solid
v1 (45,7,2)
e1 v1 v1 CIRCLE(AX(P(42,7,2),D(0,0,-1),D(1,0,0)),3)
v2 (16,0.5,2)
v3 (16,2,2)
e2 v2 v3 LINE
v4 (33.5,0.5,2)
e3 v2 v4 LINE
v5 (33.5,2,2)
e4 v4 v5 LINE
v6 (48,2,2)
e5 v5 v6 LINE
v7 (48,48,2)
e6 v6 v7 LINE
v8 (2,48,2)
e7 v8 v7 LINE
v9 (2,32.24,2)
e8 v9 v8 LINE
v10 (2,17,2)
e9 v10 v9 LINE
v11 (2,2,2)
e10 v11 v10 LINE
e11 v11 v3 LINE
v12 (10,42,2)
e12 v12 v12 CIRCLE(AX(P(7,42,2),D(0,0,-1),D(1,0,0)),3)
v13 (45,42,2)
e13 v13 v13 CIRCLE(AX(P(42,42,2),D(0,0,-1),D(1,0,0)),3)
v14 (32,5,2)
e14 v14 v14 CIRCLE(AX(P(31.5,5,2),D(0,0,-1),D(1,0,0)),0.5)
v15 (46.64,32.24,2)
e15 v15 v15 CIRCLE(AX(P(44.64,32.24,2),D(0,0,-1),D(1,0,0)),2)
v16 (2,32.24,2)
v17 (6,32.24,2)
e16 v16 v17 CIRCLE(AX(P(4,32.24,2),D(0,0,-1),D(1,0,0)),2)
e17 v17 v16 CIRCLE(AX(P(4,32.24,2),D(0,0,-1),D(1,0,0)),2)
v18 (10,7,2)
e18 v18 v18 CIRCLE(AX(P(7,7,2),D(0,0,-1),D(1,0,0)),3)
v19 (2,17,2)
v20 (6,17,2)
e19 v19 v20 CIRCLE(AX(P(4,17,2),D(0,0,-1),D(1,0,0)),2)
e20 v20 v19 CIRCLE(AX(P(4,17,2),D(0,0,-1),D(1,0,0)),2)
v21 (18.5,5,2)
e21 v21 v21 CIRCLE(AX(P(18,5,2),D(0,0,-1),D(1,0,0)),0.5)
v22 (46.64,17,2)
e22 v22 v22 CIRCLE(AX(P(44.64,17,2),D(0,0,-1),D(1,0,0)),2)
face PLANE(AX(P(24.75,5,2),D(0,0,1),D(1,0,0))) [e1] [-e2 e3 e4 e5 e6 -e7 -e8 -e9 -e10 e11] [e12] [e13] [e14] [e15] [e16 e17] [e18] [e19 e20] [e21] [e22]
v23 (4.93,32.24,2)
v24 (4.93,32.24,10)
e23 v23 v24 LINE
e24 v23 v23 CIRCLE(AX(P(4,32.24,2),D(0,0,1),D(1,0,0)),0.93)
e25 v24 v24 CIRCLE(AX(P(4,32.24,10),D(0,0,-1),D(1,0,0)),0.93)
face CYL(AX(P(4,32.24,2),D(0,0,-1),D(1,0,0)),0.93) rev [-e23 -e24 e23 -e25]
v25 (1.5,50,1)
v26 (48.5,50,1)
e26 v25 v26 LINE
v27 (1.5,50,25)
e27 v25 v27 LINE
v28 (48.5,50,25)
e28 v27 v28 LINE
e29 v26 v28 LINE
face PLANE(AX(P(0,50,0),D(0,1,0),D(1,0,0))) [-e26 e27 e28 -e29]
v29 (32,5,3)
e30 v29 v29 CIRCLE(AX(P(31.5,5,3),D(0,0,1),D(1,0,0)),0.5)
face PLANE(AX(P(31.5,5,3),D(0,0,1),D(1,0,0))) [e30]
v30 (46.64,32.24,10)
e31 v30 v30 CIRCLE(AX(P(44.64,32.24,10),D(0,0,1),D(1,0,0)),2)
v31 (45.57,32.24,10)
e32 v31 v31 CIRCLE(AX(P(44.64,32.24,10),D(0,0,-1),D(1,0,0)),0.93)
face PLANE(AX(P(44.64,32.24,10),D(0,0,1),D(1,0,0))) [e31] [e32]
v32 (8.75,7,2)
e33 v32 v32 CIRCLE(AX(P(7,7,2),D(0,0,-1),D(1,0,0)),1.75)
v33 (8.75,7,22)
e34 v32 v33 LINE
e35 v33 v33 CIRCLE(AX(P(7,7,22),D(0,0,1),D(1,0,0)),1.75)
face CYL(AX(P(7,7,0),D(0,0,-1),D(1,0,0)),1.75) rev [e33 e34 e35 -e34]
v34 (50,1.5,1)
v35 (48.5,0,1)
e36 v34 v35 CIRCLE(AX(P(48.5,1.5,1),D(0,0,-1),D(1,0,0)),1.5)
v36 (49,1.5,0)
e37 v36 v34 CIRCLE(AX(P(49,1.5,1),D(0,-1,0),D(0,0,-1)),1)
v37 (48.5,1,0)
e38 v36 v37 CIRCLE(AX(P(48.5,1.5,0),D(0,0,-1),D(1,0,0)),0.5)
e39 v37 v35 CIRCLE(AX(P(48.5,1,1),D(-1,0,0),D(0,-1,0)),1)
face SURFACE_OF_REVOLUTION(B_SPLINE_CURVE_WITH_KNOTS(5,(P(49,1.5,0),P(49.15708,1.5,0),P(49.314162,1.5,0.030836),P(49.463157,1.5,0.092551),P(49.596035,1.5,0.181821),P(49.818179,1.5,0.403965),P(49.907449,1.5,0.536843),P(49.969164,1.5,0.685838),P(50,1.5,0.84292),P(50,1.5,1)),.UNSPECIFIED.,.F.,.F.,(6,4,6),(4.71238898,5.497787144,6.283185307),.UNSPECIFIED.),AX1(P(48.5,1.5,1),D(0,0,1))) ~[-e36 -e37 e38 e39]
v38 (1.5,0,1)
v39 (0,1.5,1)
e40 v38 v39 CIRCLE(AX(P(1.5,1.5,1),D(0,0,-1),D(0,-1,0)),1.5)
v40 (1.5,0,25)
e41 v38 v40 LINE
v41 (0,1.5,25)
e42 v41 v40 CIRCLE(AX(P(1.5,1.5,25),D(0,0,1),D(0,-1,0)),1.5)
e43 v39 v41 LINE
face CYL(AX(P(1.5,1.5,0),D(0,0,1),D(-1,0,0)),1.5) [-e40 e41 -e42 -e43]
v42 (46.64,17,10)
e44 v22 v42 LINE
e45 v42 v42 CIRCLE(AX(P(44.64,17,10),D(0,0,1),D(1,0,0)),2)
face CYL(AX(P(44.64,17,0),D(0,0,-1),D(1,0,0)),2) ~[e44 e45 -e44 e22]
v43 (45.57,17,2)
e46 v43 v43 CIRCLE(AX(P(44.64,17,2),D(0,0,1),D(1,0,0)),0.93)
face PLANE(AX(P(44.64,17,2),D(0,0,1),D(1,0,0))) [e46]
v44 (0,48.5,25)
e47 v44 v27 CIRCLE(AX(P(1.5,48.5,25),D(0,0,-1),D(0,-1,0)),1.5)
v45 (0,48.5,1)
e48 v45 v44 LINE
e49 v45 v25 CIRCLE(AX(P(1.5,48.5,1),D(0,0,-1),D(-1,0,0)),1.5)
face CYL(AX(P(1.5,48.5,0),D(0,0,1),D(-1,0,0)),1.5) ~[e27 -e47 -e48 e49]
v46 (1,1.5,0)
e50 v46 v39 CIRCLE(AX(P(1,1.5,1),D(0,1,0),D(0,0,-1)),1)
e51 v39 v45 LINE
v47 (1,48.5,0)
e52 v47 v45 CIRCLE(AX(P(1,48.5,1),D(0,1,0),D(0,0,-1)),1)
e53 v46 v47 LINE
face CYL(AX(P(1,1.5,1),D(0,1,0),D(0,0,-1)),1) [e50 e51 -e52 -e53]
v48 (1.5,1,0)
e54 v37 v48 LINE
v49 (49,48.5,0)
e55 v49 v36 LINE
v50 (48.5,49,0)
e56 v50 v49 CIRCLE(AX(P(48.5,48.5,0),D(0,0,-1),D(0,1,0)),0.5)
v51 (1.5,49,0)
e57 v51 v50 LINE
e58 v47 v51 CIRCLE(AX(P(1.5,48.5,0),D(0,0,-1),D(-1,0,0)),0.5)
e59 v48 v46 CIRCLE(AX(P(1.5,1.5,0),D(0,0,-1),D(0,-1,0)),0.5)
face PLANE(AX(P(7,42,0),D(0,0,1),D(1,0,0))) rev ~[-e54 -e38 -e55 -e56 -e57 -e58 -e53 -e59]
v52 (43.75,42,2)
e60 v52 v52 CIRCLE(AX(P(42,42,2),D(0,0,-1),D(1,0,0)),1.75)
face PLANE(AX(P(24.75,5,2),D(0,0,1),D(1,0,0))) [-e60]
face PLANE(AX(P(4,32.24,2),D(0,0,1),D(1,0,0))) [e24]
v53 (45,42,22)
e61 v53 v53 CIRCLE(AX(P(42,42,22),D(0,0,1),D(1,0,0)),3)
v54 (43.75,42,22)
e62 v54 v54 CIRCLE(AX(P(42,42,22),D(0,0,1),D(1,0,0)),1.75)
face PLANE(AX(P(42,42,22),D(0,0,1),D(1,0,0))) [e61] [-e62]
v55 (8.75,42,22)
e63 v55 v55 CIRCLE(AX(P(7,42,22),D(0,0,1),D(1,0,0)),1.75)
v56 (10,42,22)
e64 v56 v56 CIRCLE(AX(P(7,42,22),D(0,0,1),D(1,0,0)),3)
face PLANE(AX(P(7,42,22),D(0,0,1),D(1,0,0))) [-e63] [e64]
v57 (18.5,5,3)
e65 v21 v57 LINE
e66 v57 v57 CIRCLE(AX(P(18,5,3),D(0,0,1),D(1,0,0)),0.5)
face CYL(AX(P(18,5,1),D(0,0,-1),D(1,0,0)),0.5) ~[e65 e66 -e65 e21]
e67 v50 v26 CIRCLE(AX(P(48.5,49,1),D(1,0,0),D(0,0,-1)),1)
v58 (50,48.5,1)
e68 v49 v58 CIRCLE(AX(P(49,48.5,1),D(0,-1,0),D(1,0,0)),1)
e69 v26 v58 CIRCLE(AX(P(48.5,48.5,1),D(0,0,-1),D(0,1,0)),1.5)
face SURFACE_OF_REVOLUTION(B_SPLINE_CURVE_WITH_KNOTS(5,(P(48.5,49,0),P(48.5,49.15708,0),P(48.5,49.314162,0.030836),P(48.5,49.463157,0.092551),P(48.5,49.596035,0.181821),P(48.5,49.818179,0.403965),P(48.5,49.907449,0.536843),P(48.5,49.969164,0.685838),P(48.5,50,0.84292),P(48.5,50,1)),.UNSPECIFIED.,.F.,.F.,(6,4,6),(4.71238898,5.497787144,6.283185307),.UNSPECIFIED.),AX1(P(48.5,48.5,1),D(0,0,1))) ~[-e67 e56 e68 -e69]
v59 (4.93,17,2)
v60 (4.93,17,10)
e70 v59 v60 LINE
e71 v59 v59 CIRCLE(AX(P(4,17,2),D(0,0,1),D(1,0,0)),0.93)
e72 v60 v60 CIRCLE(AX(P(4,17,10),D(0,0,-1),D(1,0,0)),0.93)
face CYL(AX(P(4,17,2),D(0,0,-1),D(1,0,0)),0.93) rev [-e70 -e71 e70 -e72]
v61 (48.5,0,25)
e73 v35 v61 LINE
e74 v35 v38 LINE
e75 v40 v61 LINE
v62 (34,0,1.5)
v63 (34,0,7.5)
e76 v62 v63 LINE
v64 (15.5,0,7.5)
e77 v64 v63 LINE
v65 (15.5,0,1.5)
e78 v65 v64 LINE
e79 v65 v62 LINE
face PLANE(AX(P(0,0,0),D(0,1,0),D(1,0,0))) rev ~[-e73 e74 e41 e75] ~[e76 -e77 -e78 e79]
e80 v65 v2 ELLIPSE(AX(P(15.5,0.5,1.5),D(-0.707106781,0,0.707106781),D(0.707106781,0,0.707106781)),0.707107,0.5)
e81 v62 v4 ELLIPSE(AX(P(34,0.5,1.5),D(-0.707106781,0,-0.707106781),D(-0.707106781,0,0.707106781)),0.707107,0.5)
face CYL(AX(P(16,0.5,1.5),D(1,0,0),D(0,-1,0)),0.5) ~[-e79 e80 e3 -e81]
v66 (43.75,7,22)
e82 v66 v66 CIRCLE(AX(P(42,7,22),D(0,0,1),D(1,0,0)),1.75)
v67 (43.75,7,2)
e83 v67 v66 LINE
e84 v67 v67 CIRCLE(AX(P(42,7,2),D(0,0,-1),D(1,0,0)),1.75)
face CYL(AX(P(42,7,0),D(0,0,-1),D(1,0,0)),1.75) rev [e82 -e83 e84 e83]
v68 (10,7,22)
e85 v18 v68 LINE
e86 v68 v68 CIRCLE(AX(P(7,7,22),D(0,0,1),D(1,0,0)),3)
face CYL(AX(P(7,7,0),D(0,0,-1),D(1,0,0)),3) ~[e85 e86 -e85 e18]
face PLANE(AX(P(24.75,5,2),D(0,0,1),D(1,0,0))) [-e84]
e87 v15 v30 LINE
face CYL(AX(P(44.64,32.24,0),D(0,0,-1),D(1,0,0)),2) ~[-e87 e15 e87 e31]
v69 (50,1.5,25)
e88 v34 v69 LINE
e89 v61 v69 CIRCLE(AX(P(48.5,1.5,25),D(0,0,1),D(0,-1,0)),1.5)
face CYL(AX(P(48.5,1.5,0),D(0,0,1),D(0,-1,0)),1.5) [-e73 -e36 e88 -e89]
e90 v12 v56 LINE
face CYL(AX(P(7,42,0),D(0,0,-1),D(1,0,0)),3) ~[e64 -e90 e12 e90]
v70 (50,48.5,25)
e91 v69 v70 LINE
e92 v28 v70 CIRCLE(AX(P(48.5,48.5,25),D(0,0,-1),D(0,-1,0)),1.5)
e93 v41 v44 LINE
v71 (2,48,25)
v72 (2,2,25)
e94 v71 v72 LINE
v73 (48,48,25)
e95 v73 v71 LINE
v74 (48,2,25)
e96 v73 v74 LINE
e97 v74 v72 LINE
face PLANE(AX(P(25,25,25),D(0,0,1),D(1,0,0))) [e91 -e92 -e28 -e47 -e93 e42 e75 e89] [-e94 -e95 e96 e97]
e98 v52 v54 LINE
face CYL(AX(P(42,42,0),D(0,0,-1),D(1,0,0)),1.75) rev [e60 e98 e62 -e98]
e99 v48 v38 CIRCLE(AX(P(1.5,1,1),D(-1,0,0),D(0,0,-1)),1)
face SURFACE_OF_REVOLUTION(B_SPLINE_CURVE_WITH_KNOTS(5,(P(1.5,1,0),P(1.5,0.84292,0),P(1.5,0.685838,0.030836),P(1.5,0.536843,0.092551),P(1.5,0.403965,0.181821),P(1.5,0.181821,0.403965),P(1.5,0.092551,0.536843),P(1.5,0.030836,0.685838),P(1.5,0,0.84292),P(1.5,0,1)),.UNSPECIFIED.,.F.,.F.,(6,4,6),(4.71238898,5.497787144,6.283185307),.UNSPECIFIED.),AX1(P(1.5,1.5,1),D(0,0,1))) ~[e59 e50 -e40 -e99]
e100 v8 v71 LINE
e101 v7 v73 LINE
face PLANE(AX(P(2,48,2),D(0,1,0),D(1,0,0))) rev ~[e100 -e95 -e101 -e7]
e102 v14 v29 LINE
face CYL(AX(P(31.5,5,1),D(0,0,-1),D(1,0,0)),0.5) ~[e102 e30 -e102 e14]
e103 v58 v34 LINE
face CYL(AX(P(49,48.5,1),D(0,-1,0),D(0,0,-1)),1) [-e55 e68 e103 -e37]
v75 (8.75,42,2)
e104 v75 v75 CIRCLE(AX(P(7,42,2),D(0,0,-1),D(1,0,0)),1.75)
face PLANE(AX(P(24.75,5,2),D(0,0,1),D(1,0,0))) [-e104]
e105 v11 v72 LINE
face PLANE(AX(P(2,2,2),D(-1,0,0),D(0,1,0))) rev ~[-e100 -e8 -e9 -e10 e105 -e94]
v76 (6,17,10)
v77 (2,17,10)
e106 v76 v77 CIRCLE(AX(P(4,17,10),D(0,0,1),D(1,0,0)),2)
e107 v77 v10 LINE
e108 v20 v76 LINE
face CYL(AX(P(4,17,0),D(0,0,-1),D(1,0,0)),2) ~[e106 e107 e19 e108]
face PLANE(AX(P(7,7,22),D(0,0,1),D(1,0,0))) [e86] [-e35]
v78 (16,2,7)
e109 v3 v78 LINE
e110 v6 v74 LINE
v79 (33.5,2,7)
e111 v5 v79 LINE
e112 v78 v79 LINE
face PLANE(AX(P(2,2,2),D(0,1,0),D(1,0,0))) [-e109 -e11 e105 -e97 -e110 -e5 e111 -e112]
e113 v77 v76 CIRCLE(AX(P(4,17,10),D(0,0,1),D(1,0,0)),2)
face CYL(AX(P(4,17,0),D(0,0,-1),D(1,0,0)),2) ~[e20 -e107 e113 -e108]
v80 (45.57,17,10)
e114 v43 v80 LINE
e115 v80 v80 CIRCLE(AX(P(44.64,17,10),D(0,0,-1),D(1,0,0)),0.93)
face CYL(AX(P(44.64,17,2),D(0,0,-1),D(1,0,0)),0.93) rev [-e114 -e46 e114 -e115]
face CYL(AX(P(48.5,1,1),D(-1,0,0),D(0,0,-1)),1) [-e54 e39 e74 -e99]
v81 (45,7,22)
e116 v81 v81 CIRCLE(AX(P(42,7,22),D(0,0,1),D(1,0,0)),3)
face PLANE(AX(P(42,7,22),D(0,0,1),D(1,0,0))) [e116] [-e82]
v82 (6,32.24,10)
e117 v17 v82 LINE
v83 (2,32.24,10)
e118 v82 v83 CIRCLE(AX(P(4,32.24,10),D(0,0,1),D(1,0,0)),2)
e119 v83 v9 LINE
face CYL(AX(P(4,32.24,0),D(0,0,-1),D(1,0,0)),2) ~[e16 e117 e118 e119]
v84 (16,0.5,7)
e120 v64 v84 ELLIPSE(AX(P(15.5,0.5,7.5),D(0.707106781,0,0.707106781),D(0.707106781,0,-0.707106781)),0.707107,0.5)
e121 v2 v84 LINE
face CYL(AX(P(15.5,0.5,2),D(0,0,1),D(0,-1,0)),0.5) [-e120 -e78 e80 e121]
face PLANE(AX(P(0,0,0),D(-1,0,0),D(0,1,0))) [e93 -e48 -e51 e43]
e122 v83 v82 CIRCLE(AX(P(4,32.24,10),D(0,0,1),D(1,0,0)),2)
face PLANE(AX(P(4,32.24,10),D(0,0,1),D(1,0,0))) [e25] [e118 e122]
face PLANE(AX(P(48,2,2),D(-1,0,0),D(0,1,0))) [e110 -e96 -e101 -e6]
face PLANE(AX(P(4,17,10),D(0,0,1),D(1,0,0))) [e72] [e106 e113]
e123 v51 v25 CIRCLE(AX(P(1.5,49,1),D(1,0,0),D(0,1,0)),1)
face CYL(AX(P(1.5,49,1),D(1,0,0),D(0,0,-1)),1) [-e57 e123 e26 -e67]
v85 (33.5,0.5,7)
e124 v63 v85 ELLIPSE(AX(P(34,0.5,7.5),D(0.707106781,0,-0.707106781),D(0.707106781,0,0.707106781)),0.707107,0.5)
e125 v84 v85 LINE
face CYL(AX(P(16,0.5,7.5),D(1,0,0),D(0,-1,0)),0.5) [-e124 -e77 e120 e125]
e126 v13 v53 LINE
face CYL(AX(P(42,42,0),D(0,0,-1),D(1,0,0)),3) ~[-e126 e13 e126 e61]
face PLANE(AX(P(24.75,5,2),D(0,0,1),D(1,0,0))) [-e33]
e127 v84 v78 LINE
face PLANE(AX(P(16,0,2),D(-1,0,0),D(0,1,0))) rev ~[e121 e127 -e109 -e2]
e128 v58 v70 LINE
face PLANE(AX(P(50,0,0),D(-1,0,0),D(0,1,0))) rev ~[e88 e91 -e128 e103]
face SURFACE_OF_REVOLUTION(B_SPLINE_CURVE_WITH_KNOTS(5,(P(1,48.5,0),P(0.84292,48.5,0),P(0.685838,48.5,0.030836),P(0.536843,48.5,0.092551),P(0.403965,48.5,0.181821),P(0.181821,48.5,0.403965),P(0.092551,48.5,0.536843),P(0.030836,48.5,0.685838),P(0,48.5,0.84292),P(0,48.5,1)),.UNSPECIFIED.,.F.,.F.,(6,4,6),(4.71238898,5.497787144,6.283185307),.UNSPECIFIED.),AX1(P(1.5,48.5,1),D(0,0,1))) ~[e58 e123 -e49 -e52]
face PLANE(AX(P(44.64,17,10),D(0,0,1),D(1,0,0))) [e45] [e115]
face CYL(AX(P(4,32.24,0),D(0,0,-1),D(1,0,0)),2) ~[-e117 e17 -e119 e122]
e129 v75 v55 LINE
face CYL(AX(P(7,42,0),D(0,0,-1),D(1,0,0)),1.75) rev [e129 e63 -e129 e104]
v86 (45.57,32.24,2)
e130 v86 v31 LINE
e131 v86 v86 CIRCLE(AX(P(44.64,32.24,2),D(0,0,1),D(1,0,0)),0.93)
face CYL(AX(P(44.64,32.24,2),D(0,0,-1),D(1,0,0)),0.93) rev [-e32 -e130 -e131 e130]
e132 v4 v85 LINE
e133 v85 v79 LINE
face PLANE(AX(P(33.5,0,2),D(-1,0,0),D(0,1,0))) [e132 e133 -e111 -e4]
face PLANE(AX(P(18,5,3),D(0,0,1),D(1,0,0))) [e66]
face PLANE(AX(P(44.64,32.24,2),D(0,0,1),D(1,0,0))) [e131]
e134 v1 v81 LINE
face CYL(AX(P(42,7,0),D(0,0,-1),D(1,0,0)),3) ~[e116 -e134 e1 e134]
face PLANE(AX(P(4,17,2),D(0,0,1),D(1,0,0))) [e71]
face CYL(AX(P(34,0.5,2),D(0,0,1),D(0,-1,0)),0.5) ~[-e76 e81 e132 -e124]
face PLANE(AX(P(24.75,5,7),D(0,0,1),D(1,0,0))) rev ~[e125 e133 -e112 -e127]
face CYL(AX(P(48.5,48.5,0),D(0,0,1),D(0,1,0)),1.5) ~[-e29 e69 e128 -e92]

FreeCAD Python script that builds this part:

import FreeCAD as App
import Part
import Sketcher


def edges_at(feature, points):
    """Names of the edges that pass closest to the given points."""
    edges = feature.Shape.Edges
    near = lambda p: min(range(len(edges)), key=lambda i: edges[i].distToShape(Part.Vertex(*p))[0])
    return sorted({f"Edge{near(p) + 1}" for p in points})


def add_polygon(sketch, points):
    """Adds a closed chain of lines whose ends are joined by coincident constraints."""
    first, n = sketch.GeometryCount, len(points)
    for a, b in zip(points, points[1:] + points[:1]):
        sketch.addGeometry(Part.LineSegment(App.Vector(*a, 0), App.Vector(*b, 0)), False)
    for i in range(n):
        sketch.addConstraint(Sketcher.Constraint("Coincident", first + i, 2, first + (i + 1) % n, 1))

doc = App.newDocument("Part")
body = doc.addObject("PartDesign::Body", "Body")

# Sketch on XY plane
sketch1 = doc.addObject("Sketcher::SketchObject", "Sketch")
body.addObject(sketch1)
sketch1.AttachmentSupport = (doc.XY_Plane, [""])
sketch1.MapMode = "FlatFace"
sketch1.addGeometry(Part.Circle(App.Vector(0, 0, 0), App.Vector(0, 0, 1), 1.8), False)
sketch1.addConstraint([
    Sketcher.Constraint("Coincident", 0, 3, -1, 1),
    Sketcher.Constraint("Diameter", 0, 3.5),
])
pad1 = doc.addObject("PartDesign::Pad", "Pad")
body.addObject(pad1)
pad1.Profile = sketch1
pad1.Length = 22
body2 = doc.addObject("PartDesign::Body", "Body001")

# Sketch on XY plane
sketch2 = doc.addObject("Sketcher::SketchObject", "Sketch001")
body2.addObject(sketch2)
sketch2.AttachmentSupport = (doc.getObject("XY_Plane001"), [""])
sketch2.MapMode = "FlatFace"
sketch2.addGeometry(Part.Circle(App.Vector(0, 0, 0), App.Vector(0, 0, 1), 3), False)
sketch2.addConstraint([
    Sketcher.Constraint("Coincident", 0, 3, -1, 1),
    Sketcher.Constraint("Diameter", 0, 6.0),
])
pad2 = doc.addObject("PartDesign::Pad", "Pad001")
body2.addObject(pad2)
pad2.Profile = sketch2
pad2.Length = 22
doc.recompute()

boolean = doc.addObject("PartDesign::Boolean", "Boolean")
body2.addObject(boolean)
boolean.Type = "Cut"
boolean.addObjects([body])
body3 = doc.addObject("PartDesign::Body", "Body002")
doc.recompute()

body2.Placement = App.Placement(App.Vector(41, 35, 0), App.Rotation(App.Vector(0, 0, 1), 0))
boolean2 = doc.addObject("PartDesign::Boolean", "Boolean001")
body3.addObject(boolean2)
boolean2.Type = "Fuse"
boolean2.addObjects([body2])
body4 = doc.addObject("PartDesign::Body", "Body003")

# Sketch on XY plane
sketch3 = doc.addObject("Sketcher::SketchObject", "Sketch002")
body4.addObject(sketch3)
sketch3.AttachmentSupport = (doc.getObject("XY_Plane003"), [""])
sketch3.MapMode = "FlatFace"
sketch3.addGeometry(Part.Circle(App.Vector(0, 0, 0), App.Vector(0, 0, 1), 1.8), False)
sketch3.addConstraint([
    Sketcher.Constraint("Coincident", 0, 3, -1, 1),
    Sketcher.Constraint("Diameter", 0, 3.5),
])
pad3 = doc.addObject("PartDesign::Pad", "Pad002")
body4.addObject(pad3)
pad3.Profile = sketch3
pad3.Length = 22
body5 = doc.addObject("PartDesign::Body", "Body004")

# Sketch on XY plane
sketch4 = doc.addObject("Sketcher::SketchObject", "Sketch003")
body5.addObject(sketch4)
sketch4.AttachmentSupport = (doc.getObject("XY_Plane004"), [""])
sketch4.MapMode = "FlatFace"
sketch4.addGeometry(Part.Circle(App.Vector(0, 0, 0), App.Vector(0, 0, 1), 3), False)
sketch4.addConstraint([
    Sketcher.Constraint("Coincident", 0, 3, -1, 1),
    Sketcher.Constraint("Diameter", 0, 6.0),
])
pad4 = doc.addObject("PartDesign::Pad", "Pad003")
body5.addObject(pad4)
pad4.Profile = sketch4
pad4.Length = 22
doc.recompute()

boolean3 = doc.addObject("PartDesign::Boolean", "Boolean002")
body5.addObject(boolean3)
boolean3.Type = "Cut"
boolean3.addObjects([body4])
body6 = doc.addObject("PartDesign::Body", "Body005")
body6.AllowCompound = True
doc.recompute()

body5.Placement = App.Placement(App.Vector(6, 35, 0), App.Rotation(App.Vector(0, 0, 1), 0))
boolean4 = doc.addObject("PartDesign::Boolean", "Boolean003")
body6.addObject(boolean4)
boolean4.Type = "Fuse"
boolean4.addObjects([body5])
doc.recompute()

boolean5 = doc.addObject("PartDesign::Boolean", "Boolean004")
body6.addObject(boolean5)
boolean5.Type = "Fuse"
boolean5.addObjects([body3])
body7 = doc.addObject("PartDesign::Body", "Body006")
body7.AllowCompound = True
doc.recompute()

body6.Placement = App.Placement(App.Vector(0, -35, 0), App.Rotation(App.Vector(0, 0, 1), 0))
boolean6 = doc.addObject("PartDesign::Boolean", "Boolean005")
body7.addObject(boolean6)
boolean6.Type = "Fuse"
boolean6.addObjects([body6])
body8 = doc.addObject("PartDesign::Body", "Body007")

# Sketch on XY plane
sketch5 = doc.addObject("Sketcher::SketchObject", "Sketch004")
body8.addObject(sketch5)
sketch5.AttachmentSupport = (doc.getObject("XY_Plane007"), [""])
sketch5.MapMode = "FlatFace"
sketch5.addGeometry(Part.Circle(App.Vector(0, 0, 0), App.Vector(0, 0, 1), 1.8), False)
sketch5.addConstraint([
    Sketcher.Constraint("Coincident", 0, 3, -1, 1),
    Sketcher.Constraint("Diameter", 0, 3.5),
])
pad5 = doc.addObject("PartDesign::Pad", "Pad004")
body8.addObject(pad5)
pad5.Profile = sketch5
pad5.Length = 22
body9 = doc.addObject("PartDesign::Body", "Body008")

# Sketch on XY plane
sketch6 = doc.addObject("Sketcher::SketchObject", "Sketch005")
body9.addObject(sketch6)
sketch6.AttachmentSupport = (doc.getObject("XY_Plane008"), [""])
sketch6.MapMode = "FlatFace"
sketch6.addGeometry(Part.Circle(App.Vector(0, 0, 0), App.Vector(0, 0, 1), 3), False)
sketch6.addConstraint([
    Sketcher.Constraint("Coincident", 0, 3, -1, 1),
    Sketcher.Constraint("Diameter", 0, 6.0),
])
pad6 = doc.addObject("PartDesign::Pad", "Pad005")
body9.addObject(pad6)
pad6.Profile = sketch6
pad6.Length = 22
doc.recompute()

boolean7 = doc.addObject("PartDesign::Boolean", "Boolean006")
body9.addObject(boolean7)
boolean7.Type = "Cut"
boolean7.addObjects([body8])
body10 = doc.addObject("PartDesign::Body", "Body009")
doc.recompute()

body9.Placement = App.Placement(App.Vector(41, 35, 0), App.Rotation(App.Vector(0, 0, 1), 0))
boolean8 = doc.addObject("PartDesign::Boolean", "Boolean007")
body10.addObject(boolean8)
boolean8.Type = "Fuse"
boolean8.addObjects([body9])
body11 = doc.addObject("PartDesign::Body", "Body010")

# Sketch on XY plane
sketch7 = doc.addObject("Sketcher::SketchObject", "Sketch006")
body11.addObject(sketch7)
sketch7.AttachmentSupport = (doc.getObject("XY_Plane010"), [""])
sketch7.MapMode = "FlatFace"
sketch7.addGeometry(Part.Circle(App.Vector(0, 0, 0), App.Vector(0, 0, 1), 1.8), False)
sketch7.addConstraint([
    Sketcher.Constraint("Coincident", 0, 3, -1, 1),
    Sketcher.Constraint("Diameter", 0, 3.5),
])
pad7 = doc.addObject("PartDesign::Pad", "Pad006")
body11.addObject(pad7)
pad7.Profile = sketch7
pad7.Length = 22
body12 = doc.addObject("PartDesign::Body", "Body011")

# Sketch on XY plane
sketch8 = doc.addObject("Sketcher::SketchObject", "Sketch007")
body12.addObject(sketch8)
sketch8.AttachmentSupport = (doc.getObject("XY_Plane011"), [""])
sketch8.MapMode = "FlatFace"
sketch8.addGeometry(Part.Circle(App.Vector(0, 0, 0), App.Vector(0, 0, 1), 3), False)
sketch8.addConstraint([
    Sketcher.Constraint("Coincident", 0, 3, -1, 1),
    Sketcher.Constraint("Diameter", 0, 6.0),
])
pad8 = doc.addObject("PartDesign::Pad", "Pad007")
body12.addObject(pad8)
pad8.Profile = sketch8
pad8.Length = 22
doc.recompute()

boolean9 = doc.addObject("PartDesign::Boolean", "Boolean008")
body12.addObject(boolean9)
boolean9.Type = "Cut"
boolean9.addObjects([body11])
body13 = doc.addObject("PartDesign::Body", "Body012")
body13.AllowCompound = True
doc.recompute()

body12.Placement = App.Placement(App.Vector(6, 35, 0), App.Rotation(App.Vector(0, 0, 1), 0))
boolean10 = doc.addObject("PartDesign::Boolean", "Boolean009")
body13.addObject(boolean10)
boolean10.Type = "Fuse"
boolean10.addObjects([body12])
doc.recompute()

boolean11 = doc.addObject("PartDesign::Boolean", "Boolean010")
body13.addObject(boolean11)
boolean11.Type = "Fuse"
boolean11.addObjects([body10])
doc.recompute()

boolean12 = doc.addObject("PartDesign::Boolean", "Boolean011")
body13.addObject(boolean12)
boolean12.Type = "Fuse"
boolean12.addObjects([body7])
body14 = doc.addObject("PartDesign::Body", "Body013")
body14.AllowCompound = True
doc.recompute()

body13.Placement = App.Placement(App.Vector(1, 7, 0), App.Rotation(App.Vector(0, 0, 1), 0))
boolean13 = doc.addObject("PartDesign::Boolean", "Boolean012")
body14.addObject(boolean13)
boolean13.Type = "Fuse"
boolean13.addObjects([body13])
body15 = doc.addObject("PartDesign::Body", "Body014")

# Sketch on XY plane
sketch9 = doc.addObject("Sketcher::SketchObject", "Sketch008")
body15.addObject(sketch9)
sketch9.AttachmentSupport = (doc.getObject("XY_Plane014"), [""])
sketch9.MapMode = "FlatFace"
sketch9.addGeometry(Part.Circle(App.Vector(13.5, 0, 0), App.Vector(0, 0, 1), 0.5), False)
sketch9.addConstraint([
    Sketcher.Constraint("PointOnObject", 0, 3, -1),
    Sketcher.Constraint("Diameter", 0, 1.0),
    Sketcher.Constraint("DistanceX", -1, 1, 0, 3, 13.5),
])
pad9 = doc.addObject("PartDesign::Pad", "Pad008")
body15.addObject(pad9)
pad9.Profile = sketch9
pad9.Length = 2
body16 = doc.addObject("PartDesign::Body", "Body015")
body16.AllowCompound = True

# Sketch on XY plane
sketch10 = doc.addObject("Sketcher::SketchObject", "Sketch009")
body16.addObject(sketch10)
sketch10.AttachmentSupport = (doc.getObject("XY_Plane015"), [""])
sketch10.MapMode = "FlatFace"
sketch10.addGeometry(Part.Circle(App.Vector(0, 0, 0), App.Vector(0, 0, 1), 0.5), False)
sketch10.addConstraint([
    Sketcher.Constraint("Coincident", 0, 3, -1, 1),
    Sketcher.Constraint("Diameter", 0, 1.0),
])
pad10 = doc.addObject("PartDesign::Pad", "Pad009")
body16.addObject(pad10)
pad10.Profile = sketch10
pad10.Length = 2
doc.recompute()

boolean14 = doc.addObject("PartDesign::Boolean", "Boolean013")
body16.addObject(boolean14)
boolean14.Type = "Fuse"
boolean14.addObjects([body15])
body17 = doc.addObject("PartDesign::Body", "Body016")
body17.AllowCompound = True
doc.recompute()

body16.Placement = App.Placement(App.Vector(18, 5, 1), App.Rotation(App.Vector(0, 0, 1), 0))
boolean15 = doc.addObject("PartDesign::Boolean", "Boolean014")
body17.addObject(boolean15)
boolean15.Type = "Fuse"
boolean15.addObjects([body16])
body18 = doc.addObject("PartDesign::Body", "Body017")

# Sketch on XY plane
sketch11 = doc.addObject("Sketcher::SketchObject", "Sketch010")
body18.addObject(sketch11)
sketch11.AttachmentSupport = (doc.getObject("XY_Plane017"), [""])
sketch11.MapMode = "FlatFace"
sketch11.AttachmentOffset = App.Placement(App.Vector(0, 0, 2), App.Rotation())
add_polygon(sketch11, [(16, 10), (16, 0), (34, 0), (34, 10)])  # lines 0-3
sketch11.addConstraint([
    Sketcher.Constraint("Vertical", 0),
    Sketcher.Constraint("Horizontal", 1),
    Sketcher.Constraint("Vertical", 2),
    Sketcher.Constraint("Horizontal", 3),
    Sketcher.Constraint("PointOnObject", 0, 2, -1),
    Sketcher.Constraint("DistanceY", 0, 2, 0, 1, 10.0),
    Sketcher.Constraint("DistanceX", 1, 1, 1, 2, 17.5),
    Sketcher.Constraint("DistanceX", -1, 1, 0, 2, 16.0),
])
pad11 = doc.addObject("PartDesign::Pad", "Pad010")
body18.addObject(pad11)
pad11.Profile = sketch11
pad11.Length = 5
body19 = doc.addObject("PartDesign::Body", "Body018")

# Sketch on XY plane
sketch12 = doc.addObject("Sketcher::SketchObject", "Sketch011")
body19.addObject(sketch12)
sketch12.AttachmentSupport = (doc.getObject("XY_Plane018"), [""])
sketch12.MapMode = "FlatFace"
sketch12.AttachmentOffset = App.Placement(App.Vector(0, 0, 2), App.Rotation())
sketch12.addGeometry(Part.Circle(App.Vector(7, 10, 0), App.Vector(0, 0, 1), 0.9), False)
sketch12.addConstraint([
    Sketcher.Constraint("Diameter", 0, 1.86),
    Sketcher.Constraint("DistanceX", -1, 1, 0, 3, 7.0),
    Sketcher.Constraint("DistanceY", -1, 1, 0, 3, 10.0),
])
pad12 = doc.addObject("PartDesign::Pad", "Pad011")
body19.addObject(pad12)
pad12.Profile = sketch12
pad12.Length = 10
body20 = doc.addObject("PartDesign::Body", "Body019")

# Sketch on XY plane
sketch13 = doc.addObject("Sketcher::SketchObject", "Sketch012")
body20.addObject(sketch13)
sketch13.AttachmentSupport = (doc.getObject("XY_Plane019"), [""])
sketch13.MapMode = "FlatFace"
sketch13.addGeometry(Part.Circle(App.Vector(7, 10, 0), App.Vector(0, 0, 1), 2), False)
sketch13.addConstraint([
    Sketcher.Constraint("Diameter", 0, 4.0),
    Sketcher.Constraint("DistanceX", -1, 1, 0, 3, 7.0),
    Sketcher.Constraint("DistanceY", -1, 1, 0, 3, 10.0),
])
pad13 = doc.addObject("PartDesign::Pad", "Pad012")
body20.addObject(pad13)
pad13.Profile = sketch13
pad13.Length = 10
doc.recompute()

boolean16 = doc.addObject("PartDesign::Boolean", "Boolean015")
body20.addObject(boolean16)
boolean16.Type = "Cut"
boolean16.addObjects([body19])
body21 = doc.addObject("PartDesign::Body", "Body020")
doc.recompute()

body20.Placement = App.Placement(App.Vector(37.64, 14.24, 0), App.Rotation(App.Vector(0, 0, 1), 0))
boolean17 = doc.addObject("PartDesign::Boolean", "Boolean016")
body21.addObject(boolean17)
boolean17.Type = "Fuse"
boolean17.addObjects([body20])
body22 = doc.addObject("PartDesign::Body", "Body021")

# Sketch on XY plane
sketch14 = doc.addObject("Sketcher::SketchObject", "Sketch013")
body22.addObject(sketch14)
sketch14.AttachmentSupport = (doc.getObject("XY_Plane021"), [""])
sketch14.MapMode = "FlatFace"
sketch14.AttachmentOffset = App.Placement(App.Vector(0, 0, 2), App.Rotation())
sketch14.addGeometry(Part.Circle(App.Vector(7, 10, 0), App.Vector(0, 0, 1), 0.9), False)
sketch14.addConstraint([
    Sketcher.Constraint("Diameter", 0, 1.86),
    Sketcher.Constraint("DistanceX", -1, 1, 0, 3, 7.0),
    Sketcher.Constraint("DistanceY", -1, 1, 0, 3, 10.0),
])
pad14 = doc.addObject("PartDesign::Pad", "Pad013")
body22.addObject(pad14)
pad14.Profile = sketch14
pad14.Length = 10
body23 = doc.addObject("PartDesign::Body", "Body022")

# Sketch on XY plane
sketch15 = doc.addObject("Sketcher::SketchObject", "Sketch014")
body23.addObject(sketch15)
sketch15.AttachmentSupport = (doc.getObject("XY_Plane022"), [""])
sketch15.MapMode = "FlatFace"
sketch15.addGeometry(Part.Circle(App.Vector(7, 10, 0), App.Vector(0, 0, 1), 2), False)
sketch15.addConstraint([
    Sketcher.Constraint("Diameter", 0, 4.0),
    Sketcher.Constraint("DistanceX", -1, 1, 0, 3, 7.0),
    Sketcher.Constraint("DistanceY", -1, 1, 0, 3, 10.0),
])
pad15 = doc.addObject("PartDesign::Pad", "Pad014")
body23.addObject(pad15)
pad15.Profile = sketch15
pad15.Length = 10
doc.recompute()

boolean18 = doc.addObject("PartDesign::Boolean", "Boolean017")
body23.addObject(boolean18)
boolean18.Type = "Cut"
boolean18.addObjects([body22])
body24 = doc.addObject("PartDesign::Body", "Body023")
body24.AllowCompound = True
doc.recompute()

body23.Placement = App.Placement(App.Vector(37.64, -1, 0), App.Rotation(App.Vector(0, 0, 1), 0))
boolean19 = doc.addObject("PartDesign::Boolean", "Boolean018")
body24.addObject(boolean19)
boolean19.Type = "Fuse"
boolean19.addObjects([body23])
doc.recompute()

boolean20 = doc.addObject("PartDesign::Boolean", "Boolean019")
body24.addObject(boolean20)
boolean20.Type = "Fuse"
boolean20.addObjects([body21])
body25 = doc.addObject("PartDesign::Body", "Body024")

# Sketch on XY plane
sketch16 = doc.addObject("Sketcher::SketchObject", "Sketch015")
body25.addObject(sketch16)
sketch16.AttachmentSupport = (doc.getObject("XY_Plane024"), [""])
sketch16.MapMode = "FlatFace"
sketch16.AttachmentOffset = App.Placement(App.Vector(0, 0, 2), App.Rotation())
sketch16.addGeometry(Part.Circle(App.Vector(7, 10, 0), App.Vector(0, 0, 1), 0.9), False)
sketch16.addConstraint([
    Sketcher.Constraint("Diameter", 0, 1.86),
    Sketcher.Constraint("DistanceX", -1, 1, 0, 3, 7.0),
    Sketcher.Constraint("DistanceY", -1, 1, 0, 3, 10.0),
])
pad16 = doc.addObject("PartDesign::Pad", "Pad015")
body25.addObject(pad16)
pad16.Profile = sketch16
pad16.Length = 10
body26 = doc.addObject("PartDesign::Body", "Body025")

# Sketch on XY plane
sketch17 = doc.addObject("Sketcher::SketchObject", "Sketch016")
body26.addObject(sketch17)
sketch17.AttachmentSupport = (doc.getObject("XY_Plane025"), [""])
sketch17.MapMode = "FlatFace"
sketch17.addGeometry(Part.Circle(App.Vector(7, 10, 0), App.Vector(0, 0, 1), 2), False)
sketch17.addConstraint([
    Sketcher.Constraint("Diameter", 0, 4.0),
    Sketcher.Constraint("DistanceX", -1, 1, 0, 3, 7.0),
    Sketcher.Constraint("DistanceY", -1, 1, 0, 3, 10.0),
])
pad17 = doc.addObject("PartDesign::Pad", "Pad016")
body26.addObject(pad17)
pad17.Profile = sketch17
pad17.Length = 10
doc.recompute()

boolean21 = doc.addObject("PartDesign::Boolean", "Boolean020")
body26.addObject(boolean21)
boolean21.Type = "Cut"
boolean21.addObjects([body25])
body27 = doc.addObject("PartDesign::Body", "Body026")
doc.recompute()

body26.Placement = App.Placement(App.Vector(-3, 14.24, 0), App.Rotation(App.Vector(0, 0, 1), 0))
boolean22 = doc.addObject("PartDesign::Boolean", "Boolean021")
body27.addObject(boolean22)
boolean22.Type = "Fuse"
boolean22.addObjects([body26])
body28 = doc.addObject("PartDesign::Body", "Body027")

# Sketch on XY plane
sketch18 = doc.addObject("Sketcher::SketchObject", "Sketch017")
body28.addObject(sketch18)
sketch18.AttachmentSupport = (doc.getObject("XY_Plane027"), [""])
sketch18.MapMode = "FlatFace"
sketch18.AttachmentOffset = App.Placement(App.Vector(0, 0, 2), App.Rotation())
sketch18.addGeometry(Part.Circle(App.Vector(7, 10, 0), App.Vector(0, 0, 1), 0.9), False)
sketch18.addConstraint([
    Sketcher.Constraint("Diameter", 0, 1.86),
    Sketcher.Constraint("DistanceX", -1, 1, 0, 3, 7.0),
    Sketcher.Constraint("DistanceY", -1, 1, 0, 3, 10.0),
])
pad18 = doc.addObject("PartDesign::Pad", "Pad017")
body28.addObject(pad18)
pad18.Profile = sketch18
pad18.Length = 10
body29 = doc.addObject("PartDesign::Body", "Body028")

# Sketch on XY plane
sketch19 = doc.addObject("Sketcher::SketchObject", "Sketch018")
body29.addObject(sketch19)
sketch19.AttachmentSupport = (doc.getObject("XY_Plane028"), [""])
sketch19.MapMode = "FlatFace"
sketch19.addGeometry(Part.Circle(App.Vector(7, 10, 0), App.Vector(0, 0, 1), 2), False)
sketch19.addConstraint([
    Sketcher.Constraint("Diameter", 0, 4.0),
    Sketcher.Constraint("DistanceX", -1, 1, 0, 3, 7.0),
    Sketcher.Constraint("DistanceY", -1, 1, 0, 3, 10.0),
])
pad19 = doc.addObject("PartDesign::Pad", "Pad018")
body29.addObject(pad19)
pad19.Profile = sketch19
pad19.Length = 10
doc.recompute()

boolean23 = doc.addObject("PartDesign::Boolean", "Boolean022")
body29.addObject(boolean23)
boolean23.Type = "Cut"
boolean23.addObjects([body28])
body30 = doc.addObject("PartDesign::Body", "Body029")
body30.AllowCompound = True
doc.recompute()

body29.Placement = App.Placement(App.Vector(-3, -1, 0), App.Rotation(App.Vector(0, 0, 1), 0))
boolean24 = doc.addObject("PartDesign::Boolean", "Boolean023")
body30.addObject(boolean24)
boolean24.Type = "Fuse"
boolean24.addObjects([body29])
doc.recompute()

boolean25 = doc.addObject("PartDesign::Boolean", "Boolean024")
body30.addObject(boolean25)
boolean25.Type = "Fuse"
boolean25.addObjects([body27])
doc.recompute()

boolean26 = doc.addObject("PartDesign::Boolean", "Boolean025")
body30.addObject(boolean26)
boolean26.Type = "Fuse"
boolean26.addObjects([body24])
body31 = doc.addObject("PartDesign::Body", "Body030")
body31.AllowCompound = True
doc.recompute()

body30.Placement = App.Placement(App.Vector(0, 8, 0), App.Rotation(App.Vector(0, 0, 1), 0))
boolean27 = doc.addObject("PartDesign::Boolean", "Boolean026")
body31.addObject(boolean27)
boolean27.Type = "Fuse"
boolean27.addObjects([body30])
body32 = doc.addObject("PartDesign::Body", "Body031")

# Sketch on XY plane
sketch20 = doc.addObject("Sketcher::SketchObject", "Sketch019")
body32.addObject(sketch20)
sketch20.AttachmentSupport = (doc.getObject("XY_Plane031"), [""])
sketch20.MapMode = "FlatFace"
sketch20.AttachmentOffset = App.Placement(App.Vector(0, 0, 2), App.Rotation())
add_polygon(sketch20, [(2, 48), (2, 2), (48, 2), (48, 48)])  # lines 0-3
sketch20.addConstraint([
    Sketcher.Constraint("Vertical", 0),
    Sketcher.Constraint("Horizontal", 1),
    Sketcher.Constraint("Vertical", 2),
    Sketcher.Constraint("Horizontal", 3),
    Sketcher.Constraint("Equal", 3, 0),
    Sketcher.Constraint("DistanceX", 1, 1, 1, 2, 46.0),
    Sketcher.Constraint("DistanceX", -1, 1, 0, 2, 2.0),
    Sketcher.Constraint("DistanceY", -1, 1, 0, 2, 2.0),
])
pad20 = doc.addObject("PartDesign::Pad", "Pad019")
body32.addObject(pad20)
pad20.Profile = sketch20
pad20.Length = 25
body33 = doc.addObject("PartDesign::Body", "Body032")

# Sketch on XY plane
sketch21 = doc.addObject("Sketcher::SketchObject", "Sketch020")
body33.addObject(sketch21)
sketch21.AttachmentSupport = (doc.getObject("XY_Plane032"), [""])
sketch21.MapMode = "FlatFace"
add_polygon(sketch21, [(0, 50), (0, 0), (50, 0), (50, 50)])  # lines 0-3
sketch21.addConstraint([
    Sketcher.Constraint("Vertical", 0),
    Sketcher.Constraint("Horizontal", 1),
    Sketcher.Constraint("Vertical", 2),
    Sketcher.Constraint("Horizontal", 3),
    Sketcher.Constraint("Coincident", 0, 2, -1, 1),
    Sketcher.Constraint("Equal", 3, 0),
    Sketcher.Constraint("DistanceX", 1, 1, 1, 2, 50.0),
])
pad21 = doc.addObject("PartDesign::Pad", "Pad020")
body33.addObject(pad21)
pad21.Profile = sketch21
pad21.Length = 25
doc.recompute()

boolean28 = doc.addObject("PartDesign::Boolean", "Boolean027")
body33.addObject(boolean28)
boolean28.Type = "Cut"
boolean28.addObjects([body32])
doc.recompute()

boolean29 = doc.addObject("PartDesign::Boolean", "Boolean028")
body33.addObject(boolean29)
boolean29.Type = "Fuse"
boolean29.addObjects([body31])
doc.recompute()

boolean30 = doc.addObject("PartDesign::Boolean", "Boolean029")
body33.addObject(boolean30)
boolean30.Type = "Cut"
boolean30.addObjects([body18])
doc.recompute()

boolean31 = doc.addObject("PartDesign::Boolean", "Boolean030")
body33.addObject(boolean31)
boolean31.Type = "Fuse"
boolean31.addObjects([body17])
doc.recompute()

boolean32 = doc.addObject("PartDesign::Boolean", "Boolean031")
body33.addObject(boolean32)
boolean32.Type = "Fuse"
boolean32.addObjects([body14])
doc.recompute()

fillet = doc.addObject("PartDesign::Fillet", "Fillet")
body33.addObject(fillet)
fillet.Base = (boolean32, edges_at(boolean32, [
    (0, 0, 12.5),
    (0, 50, 12.5),
    (50, 0, 12.5),
    (50, 50, 12.5),
]))
fillet.Radius = 1.5
doc.recompute()

fillet2 = doc.addObject("PartDesign::Fillet", "Fillet001")
body33.addObject(fillet2)
fillet2.Base = (fillet, edges_at(fillet, [
    (0, 25, 0),
    (0.439, 0.439, 0),
    (0.439, 49.561, 0),
    (25, 0, 0),
    (25, 50, 0),
    (49.561, 0.439, 0),
    (49.561, 49.561, 0),
    (50, 25, 0),
]))
fillet2.Radius = 1
doc.recompute()

fillet3 = doc.addObject("PartDesign::Fillet", "Fillet002")
body33.addObject(fillet3)
fillet3.Base = (fillet2, edges_at(fillet2, [
    (24.75, 0, 7),
    (33.5, 0, 4.5),
    (24.75, 0, 2),
    (16, 0, 4.5),
]))
fillet3.Radius = 0.5

doc.recompute()
